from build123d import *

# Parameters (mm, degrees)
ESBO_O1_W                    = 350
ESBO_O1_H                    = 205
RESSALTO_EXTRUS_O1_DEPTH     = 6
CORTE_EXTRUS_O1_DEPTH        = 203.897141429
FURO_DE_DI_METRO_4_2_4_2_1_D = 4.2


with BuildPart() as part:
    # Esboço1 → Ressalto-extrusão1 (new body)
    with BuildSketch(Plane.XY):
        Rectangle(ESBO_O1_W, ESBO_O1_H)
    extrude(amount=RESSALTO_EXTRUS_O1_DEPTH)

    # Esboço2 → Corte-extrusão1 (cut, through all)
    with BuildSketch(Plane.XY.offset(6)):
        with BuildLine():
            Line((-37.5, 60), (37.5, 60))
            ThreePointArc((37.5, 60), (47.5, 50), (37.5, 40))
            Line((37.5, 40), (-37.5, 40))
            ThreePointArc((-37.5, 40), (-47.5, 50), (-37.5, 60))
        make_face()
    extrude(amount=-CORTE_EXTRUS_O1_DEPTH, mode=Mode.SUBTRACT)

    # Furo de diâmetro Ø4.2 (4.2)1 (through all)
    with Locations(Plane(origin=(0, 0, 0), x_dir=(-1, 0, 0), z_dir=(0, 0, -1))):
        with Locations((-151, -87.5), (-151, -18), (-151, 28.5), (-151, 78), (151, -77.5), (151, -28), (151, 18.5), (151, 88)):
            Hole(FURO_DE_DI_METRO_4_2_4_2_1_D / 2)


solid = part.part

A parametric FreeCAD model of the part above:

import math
import FreeCAD as App
import Part
import Sketcher

V = App.Vector


def add_polygon(sketch, points):
    """Adds a closed chain of lines whose ends are joined by coincident constraints."""
    first, n = sketch.GeometryCount, len(points)
    for a, b in zip(points, points[1:] + points[:1]):
        sketch.addGeometry(Part.LineSegment(App.Vector(*a, 0), App.Vector(*b, 0)), False)
    for i in range(n):
        sketch.addConstraint(Sketcher.Constraint("Coincident", first + i, 2, first + (i + 1) % n, 1))

doc = App.newDocument("Part")
body = doc.addObject("PartDesign::Body", "Body")

# Sketch on XY plane
sketch1 = body.newObject("Sketcher::SketchObject", "Sketch")
sketch1.AttachmentSupport = (doc.getObject("XY_Plane"), [""])
sketch1.MapMode = "FlatFace"
add_polygon(sketch1, [(-175, 102), (-175, -102), (175, -102), (175, 102)])  # lines 0-3
sketch1.addConstraint([
    Sketcher.Constraint("Vertical", 0),
    Sketcher.Constraint("Horizontal", 1),
    Sketcher.Constraint("Vertical", 2),
    Sketcher.Constraint("Horizontal", 3),
    Sketcher.Constraint("Symmetric", 0, 2, 2, 2, -1, 1),
    Sketcher.Constraint("DistanceX", 1, 1, 1, 2, 350.0),
    Sketcher.Constraint("DistanceY", 0, 2, 0, 1, 205.0),
])
pad1 = body.newObject("PartDesign::Pad", "Pad")
pad1.Profile = sketch1
pad1.Length = 6

# Sketch on XY plane
sketch2 = body.newObject("Sketcher::SketchObject", "Sketch001")
sketch2.AttachmentSupport = (doc.getObject("XY_Plane"), [""])
sketch2.MapMode = "FlatFace"
sketch2.AttachmentOffset = App.Placement(V(0, 0, 6), App.Rotation())
sketch2.addGeometry([
    Part.LineSegment(V(38, 60, 0), V(-38, 60, 0)),
    Part.ArcOfCircle(Part.Circle(V(-38, 50, 0), V(0, 0, 1), 10), math.radians(90), math.radians(270)),
    Part.LineSegment(V(-38, 40, 0), V(38, 40, 0)),
    Part.ArcOfCircle(Part.Circle(V(38, 50, 0), V(0, 0, 1), 10), math.radians(-90), math.radians(90)),
], False)
sketch2.addConstraint([
    Sketcher.Constraint("Tangent", 0, 2, 1, 1),
    Sketcher.Constraint("Tangent", 1, 2, 2, 1),
    Sketcher.Constraint("Tangent", 2, 2, 3, 1),
    Sketcher.Constraint("Tangent", 3, 2, 0, 1),
    Sketcher.Constraint("Horizontal", 0),
    Sketcher.Constraint("Horizontal", 2),
    Sketcher.Constraint("Radius", 1, 10.0),
    Sketcher.Constraint("DistanceX", 0, 2, 0, 1, 75.0),
    Sketcher.Constraint("DistanceY", -1, 1, 1, 3, 50.0),
    Sketcher.Constraint("DistanceX", 1, 3, -1, 1, 37.5),
])
pocket1 = body.newObject("PartDesign::Pocket", "Pocket")
pocket1.Profile = sketch2
pocket1.Type = "ThroughAll"

# Sketch on XY plane
sketch3 = body.newObject("Sketcher::SketchObject", "Sketch002")
sketch3.AttachmentSupport = (doc.getObject("XY_Plane"), [""])
sketch3.MapMode = "FlatFace"
sketch3.addGeometry([
    Part.Circle(V(151, -87.5, 0), V(0, 0, 1), 2.1),  # 0
    Part.Circle(V(151, -18, 0), V(0, 0, 1), 2.1),  # 1
    Part.Circle(V(151, 28.5, 0), V(0, 0, 1), 2.1),  # 2
    Part.Circle(V(151, 78, 0), V(0, 0, 1), 2.1),  # 3
    Part.Circle(V(-151, -77.5, 0), V(0, 0, 1), 2.1),  # 4
    Part.Circle(V(-151, -28, 0), V(0, 0, 1), 2.1),  # 5
    Part.Circle(V(-151, 18.5, 0), V(0, 0, 1), 2.1),  # 6
    Part.Circle(V(-151, 88, 0), V(0, 0, 1), 2.1),  # 7
], False)
sketch3.addConstraint([
    Sketcher.Constraint("Equal", 0, 1),
    Sketcher.Constraint("Equal", 1, 2),
    Sketcher.Constraint("Equal", 2, 3),
    Sketcher.Constraint("Equal", 3, 4),
    Sketcher.Constraint("Equal", 4, 5),
    Sketcher.Constraint("Equal", 5, 6),
    Sketcher.Constraint("Equal", 6, 7),
    Sketcher.Constraint("Vertical", 0, 3, 1, 3),
    Sketcher.Constraint("Vertical", 1, 3, 2, 3),
    Sketcher.Constraint("Vertical", 2, 3, 3, 3),
    Sketcher.Constraint("Vertical", 4, 3, 5, 3),
    Sketcher.Constraint("Vertical", 5, 3, 6, 3),
    Sketcher.Constraint("Vertical", 6, 3, 7, 3),
    Sketcher.Constraint("Diameter", 0, 4.2),
    Sketcher.Constraint("DistanceX", -1, 1, 0, 3, 151.0),
    Sketcher.Constraint("DistanceY", 1, 3, -1, 1, 18.0),
    Sketcher.Constraint("DistanceY", -1, 1, 3, 3, 78.0),
    Sketcher.Constraint("DistanceX", 4, 3, -1, 1, 151.0),
    Sketcher.Constraint("DistanceY", 5, 3, -1, 1, 28.0),
    Sketcher.Constraint("DistanceY", -1, 1, 7, 3, 88.0),
    Sketcher.Constraint("DistanceY", 0, 3, 2, 3, 116.0),
    Sketcher.Constraint("DistanceY", 0, 3, 4, 3, 10.0),
    Sketcher.Constraint("DistanceY", 4, 3, 6, 3, 96.0),
    Sketcher.Constraint("DistanceY", 0, 3, -1, 1, 87.5),
])
doc.recompute()
hole = body.newObject("PartDesign::Hole", "Hole")
hole.Profile = sketch3
hole.ThreadType = "None"
hole.Diameter = 4.2
hole.DepthType = "ThroughAll"
hole.Reversed = True

doc.recompute()
